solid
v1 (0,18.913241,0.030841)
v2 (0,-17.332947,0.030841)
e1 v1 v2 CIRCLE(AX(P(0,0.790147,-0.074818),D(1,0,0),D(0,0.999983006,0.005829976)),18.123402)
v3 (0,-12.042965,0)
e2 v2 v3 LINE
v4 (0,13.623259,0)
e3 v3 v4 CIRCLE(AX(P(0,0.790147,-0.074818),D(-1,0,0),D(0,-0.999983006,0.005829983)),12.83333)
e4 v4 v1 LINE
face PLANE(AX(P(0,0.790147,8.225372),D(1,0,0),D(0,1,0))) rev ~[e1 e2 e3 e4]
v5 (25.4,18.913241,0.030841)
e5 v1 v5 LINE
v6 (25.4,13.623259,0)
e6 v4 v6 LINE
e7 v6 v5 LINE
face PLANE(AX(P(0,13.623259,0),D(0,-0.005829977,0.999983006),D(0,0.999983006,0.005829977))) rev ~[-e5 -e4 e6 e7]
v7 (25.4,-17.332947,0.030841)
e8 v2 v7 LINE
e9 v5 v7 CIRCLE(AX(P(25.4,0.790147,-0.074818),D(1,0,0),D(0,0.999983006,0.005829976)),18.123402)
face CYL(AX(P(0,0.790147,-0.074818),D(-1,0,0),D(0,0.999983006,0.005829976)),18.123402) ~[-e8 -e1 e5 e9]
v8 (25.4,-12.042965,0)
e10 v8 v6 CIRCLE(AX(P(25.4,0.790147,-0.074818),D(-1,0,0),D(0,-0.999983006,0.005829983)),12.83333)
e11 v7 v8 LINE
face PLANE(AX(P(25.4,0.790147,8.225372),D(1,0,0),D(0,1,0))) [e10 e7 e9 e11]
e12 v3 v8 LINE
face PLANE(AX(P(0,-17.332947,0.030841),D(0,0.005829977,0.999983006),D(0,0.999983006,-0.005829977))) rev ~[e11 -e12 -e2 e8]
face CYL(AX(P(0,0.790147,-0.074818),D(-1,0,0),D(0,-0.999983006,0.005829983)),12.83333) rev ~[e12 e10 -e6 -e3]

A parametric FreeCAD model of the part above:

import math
import FreeCAD as App
import Part
import Sketcher
from FreeCAD import Vector
Q = App.Units.Quantity

doc = App.newDocument("Part")
body = doc.addObject("PartDesign::Body", "Body")

sketch1 = body.newObject("Sketcher::SketchObject", "Sketch")
sketch1.AttachmentSupport = (doc.getObject("YZ_Plane"), [""])
sketch1.MapMode = "FlatFace"
sketch1.addGeometry([
    Part.ArcOfCircle(Part.Circle(Vector(0.790147, -0.074818, 0), Vector(0, 0, 1), 12.83333), math.radians(0.334035), math.radians(179.665965)),
    Part.LineSegment(Vector(13.623259, 0, 0), Vector(18.913241, 0.030841, 0)),
    Part.ArcOfCircle(Part.Circle(Vector(0.790147, -0.074818, 0), Vector(0, 0, 1), 18.123402), math.radians(0.334035), math.radians(179.665965)),
    Part.LineSegment(Vector(-17.332947, 0.030841, 0), Vector(-12.042965, 0, 0)),
], False)
sketch1.addConstraint([
    Sketcher.Constraint("Coincident", 0, 1, 1, 1),
    Sketcher.Constraint("Coincident", 1, 2, 2, 1),
    Sketcher.Constraint("Coincident", 2, 2, 3, 1),
    Sketcher.Constraint("Coincident", 3, 2, 0, 2),
    Sketcher.Constraint("Coincident", 2, 3, 0, 3),
    Sketcher.Constraint("PointOnObject", 0, 1, -1),
    Sketcher.Constraint("PointOnObject", 3, 2, -1),
    Sketcher.Constraint("Horizontal", 1, 2, 2, 2),
    Sketcher.Constraint("Radius", 2, 18.123402),
    Sketcher.Constraint("Radius", 0, 12.83333),
    Sketcher.Constraint("DistanceY", 0, 3, -1, 1, 0.074818),
    Sketcher.Constraint("DistanceX", -1, 1, 0, 1, 13.623259),
    Sketcher.Constraint("DistanceX", -1, 1, 1, 2, 18.913241),
])
pad1 = body.newObject("PartDesign::Pad", "Pad")
pad1.Profile = sketch1
pad1.Length = Q("1 in")

doc.recompute()
